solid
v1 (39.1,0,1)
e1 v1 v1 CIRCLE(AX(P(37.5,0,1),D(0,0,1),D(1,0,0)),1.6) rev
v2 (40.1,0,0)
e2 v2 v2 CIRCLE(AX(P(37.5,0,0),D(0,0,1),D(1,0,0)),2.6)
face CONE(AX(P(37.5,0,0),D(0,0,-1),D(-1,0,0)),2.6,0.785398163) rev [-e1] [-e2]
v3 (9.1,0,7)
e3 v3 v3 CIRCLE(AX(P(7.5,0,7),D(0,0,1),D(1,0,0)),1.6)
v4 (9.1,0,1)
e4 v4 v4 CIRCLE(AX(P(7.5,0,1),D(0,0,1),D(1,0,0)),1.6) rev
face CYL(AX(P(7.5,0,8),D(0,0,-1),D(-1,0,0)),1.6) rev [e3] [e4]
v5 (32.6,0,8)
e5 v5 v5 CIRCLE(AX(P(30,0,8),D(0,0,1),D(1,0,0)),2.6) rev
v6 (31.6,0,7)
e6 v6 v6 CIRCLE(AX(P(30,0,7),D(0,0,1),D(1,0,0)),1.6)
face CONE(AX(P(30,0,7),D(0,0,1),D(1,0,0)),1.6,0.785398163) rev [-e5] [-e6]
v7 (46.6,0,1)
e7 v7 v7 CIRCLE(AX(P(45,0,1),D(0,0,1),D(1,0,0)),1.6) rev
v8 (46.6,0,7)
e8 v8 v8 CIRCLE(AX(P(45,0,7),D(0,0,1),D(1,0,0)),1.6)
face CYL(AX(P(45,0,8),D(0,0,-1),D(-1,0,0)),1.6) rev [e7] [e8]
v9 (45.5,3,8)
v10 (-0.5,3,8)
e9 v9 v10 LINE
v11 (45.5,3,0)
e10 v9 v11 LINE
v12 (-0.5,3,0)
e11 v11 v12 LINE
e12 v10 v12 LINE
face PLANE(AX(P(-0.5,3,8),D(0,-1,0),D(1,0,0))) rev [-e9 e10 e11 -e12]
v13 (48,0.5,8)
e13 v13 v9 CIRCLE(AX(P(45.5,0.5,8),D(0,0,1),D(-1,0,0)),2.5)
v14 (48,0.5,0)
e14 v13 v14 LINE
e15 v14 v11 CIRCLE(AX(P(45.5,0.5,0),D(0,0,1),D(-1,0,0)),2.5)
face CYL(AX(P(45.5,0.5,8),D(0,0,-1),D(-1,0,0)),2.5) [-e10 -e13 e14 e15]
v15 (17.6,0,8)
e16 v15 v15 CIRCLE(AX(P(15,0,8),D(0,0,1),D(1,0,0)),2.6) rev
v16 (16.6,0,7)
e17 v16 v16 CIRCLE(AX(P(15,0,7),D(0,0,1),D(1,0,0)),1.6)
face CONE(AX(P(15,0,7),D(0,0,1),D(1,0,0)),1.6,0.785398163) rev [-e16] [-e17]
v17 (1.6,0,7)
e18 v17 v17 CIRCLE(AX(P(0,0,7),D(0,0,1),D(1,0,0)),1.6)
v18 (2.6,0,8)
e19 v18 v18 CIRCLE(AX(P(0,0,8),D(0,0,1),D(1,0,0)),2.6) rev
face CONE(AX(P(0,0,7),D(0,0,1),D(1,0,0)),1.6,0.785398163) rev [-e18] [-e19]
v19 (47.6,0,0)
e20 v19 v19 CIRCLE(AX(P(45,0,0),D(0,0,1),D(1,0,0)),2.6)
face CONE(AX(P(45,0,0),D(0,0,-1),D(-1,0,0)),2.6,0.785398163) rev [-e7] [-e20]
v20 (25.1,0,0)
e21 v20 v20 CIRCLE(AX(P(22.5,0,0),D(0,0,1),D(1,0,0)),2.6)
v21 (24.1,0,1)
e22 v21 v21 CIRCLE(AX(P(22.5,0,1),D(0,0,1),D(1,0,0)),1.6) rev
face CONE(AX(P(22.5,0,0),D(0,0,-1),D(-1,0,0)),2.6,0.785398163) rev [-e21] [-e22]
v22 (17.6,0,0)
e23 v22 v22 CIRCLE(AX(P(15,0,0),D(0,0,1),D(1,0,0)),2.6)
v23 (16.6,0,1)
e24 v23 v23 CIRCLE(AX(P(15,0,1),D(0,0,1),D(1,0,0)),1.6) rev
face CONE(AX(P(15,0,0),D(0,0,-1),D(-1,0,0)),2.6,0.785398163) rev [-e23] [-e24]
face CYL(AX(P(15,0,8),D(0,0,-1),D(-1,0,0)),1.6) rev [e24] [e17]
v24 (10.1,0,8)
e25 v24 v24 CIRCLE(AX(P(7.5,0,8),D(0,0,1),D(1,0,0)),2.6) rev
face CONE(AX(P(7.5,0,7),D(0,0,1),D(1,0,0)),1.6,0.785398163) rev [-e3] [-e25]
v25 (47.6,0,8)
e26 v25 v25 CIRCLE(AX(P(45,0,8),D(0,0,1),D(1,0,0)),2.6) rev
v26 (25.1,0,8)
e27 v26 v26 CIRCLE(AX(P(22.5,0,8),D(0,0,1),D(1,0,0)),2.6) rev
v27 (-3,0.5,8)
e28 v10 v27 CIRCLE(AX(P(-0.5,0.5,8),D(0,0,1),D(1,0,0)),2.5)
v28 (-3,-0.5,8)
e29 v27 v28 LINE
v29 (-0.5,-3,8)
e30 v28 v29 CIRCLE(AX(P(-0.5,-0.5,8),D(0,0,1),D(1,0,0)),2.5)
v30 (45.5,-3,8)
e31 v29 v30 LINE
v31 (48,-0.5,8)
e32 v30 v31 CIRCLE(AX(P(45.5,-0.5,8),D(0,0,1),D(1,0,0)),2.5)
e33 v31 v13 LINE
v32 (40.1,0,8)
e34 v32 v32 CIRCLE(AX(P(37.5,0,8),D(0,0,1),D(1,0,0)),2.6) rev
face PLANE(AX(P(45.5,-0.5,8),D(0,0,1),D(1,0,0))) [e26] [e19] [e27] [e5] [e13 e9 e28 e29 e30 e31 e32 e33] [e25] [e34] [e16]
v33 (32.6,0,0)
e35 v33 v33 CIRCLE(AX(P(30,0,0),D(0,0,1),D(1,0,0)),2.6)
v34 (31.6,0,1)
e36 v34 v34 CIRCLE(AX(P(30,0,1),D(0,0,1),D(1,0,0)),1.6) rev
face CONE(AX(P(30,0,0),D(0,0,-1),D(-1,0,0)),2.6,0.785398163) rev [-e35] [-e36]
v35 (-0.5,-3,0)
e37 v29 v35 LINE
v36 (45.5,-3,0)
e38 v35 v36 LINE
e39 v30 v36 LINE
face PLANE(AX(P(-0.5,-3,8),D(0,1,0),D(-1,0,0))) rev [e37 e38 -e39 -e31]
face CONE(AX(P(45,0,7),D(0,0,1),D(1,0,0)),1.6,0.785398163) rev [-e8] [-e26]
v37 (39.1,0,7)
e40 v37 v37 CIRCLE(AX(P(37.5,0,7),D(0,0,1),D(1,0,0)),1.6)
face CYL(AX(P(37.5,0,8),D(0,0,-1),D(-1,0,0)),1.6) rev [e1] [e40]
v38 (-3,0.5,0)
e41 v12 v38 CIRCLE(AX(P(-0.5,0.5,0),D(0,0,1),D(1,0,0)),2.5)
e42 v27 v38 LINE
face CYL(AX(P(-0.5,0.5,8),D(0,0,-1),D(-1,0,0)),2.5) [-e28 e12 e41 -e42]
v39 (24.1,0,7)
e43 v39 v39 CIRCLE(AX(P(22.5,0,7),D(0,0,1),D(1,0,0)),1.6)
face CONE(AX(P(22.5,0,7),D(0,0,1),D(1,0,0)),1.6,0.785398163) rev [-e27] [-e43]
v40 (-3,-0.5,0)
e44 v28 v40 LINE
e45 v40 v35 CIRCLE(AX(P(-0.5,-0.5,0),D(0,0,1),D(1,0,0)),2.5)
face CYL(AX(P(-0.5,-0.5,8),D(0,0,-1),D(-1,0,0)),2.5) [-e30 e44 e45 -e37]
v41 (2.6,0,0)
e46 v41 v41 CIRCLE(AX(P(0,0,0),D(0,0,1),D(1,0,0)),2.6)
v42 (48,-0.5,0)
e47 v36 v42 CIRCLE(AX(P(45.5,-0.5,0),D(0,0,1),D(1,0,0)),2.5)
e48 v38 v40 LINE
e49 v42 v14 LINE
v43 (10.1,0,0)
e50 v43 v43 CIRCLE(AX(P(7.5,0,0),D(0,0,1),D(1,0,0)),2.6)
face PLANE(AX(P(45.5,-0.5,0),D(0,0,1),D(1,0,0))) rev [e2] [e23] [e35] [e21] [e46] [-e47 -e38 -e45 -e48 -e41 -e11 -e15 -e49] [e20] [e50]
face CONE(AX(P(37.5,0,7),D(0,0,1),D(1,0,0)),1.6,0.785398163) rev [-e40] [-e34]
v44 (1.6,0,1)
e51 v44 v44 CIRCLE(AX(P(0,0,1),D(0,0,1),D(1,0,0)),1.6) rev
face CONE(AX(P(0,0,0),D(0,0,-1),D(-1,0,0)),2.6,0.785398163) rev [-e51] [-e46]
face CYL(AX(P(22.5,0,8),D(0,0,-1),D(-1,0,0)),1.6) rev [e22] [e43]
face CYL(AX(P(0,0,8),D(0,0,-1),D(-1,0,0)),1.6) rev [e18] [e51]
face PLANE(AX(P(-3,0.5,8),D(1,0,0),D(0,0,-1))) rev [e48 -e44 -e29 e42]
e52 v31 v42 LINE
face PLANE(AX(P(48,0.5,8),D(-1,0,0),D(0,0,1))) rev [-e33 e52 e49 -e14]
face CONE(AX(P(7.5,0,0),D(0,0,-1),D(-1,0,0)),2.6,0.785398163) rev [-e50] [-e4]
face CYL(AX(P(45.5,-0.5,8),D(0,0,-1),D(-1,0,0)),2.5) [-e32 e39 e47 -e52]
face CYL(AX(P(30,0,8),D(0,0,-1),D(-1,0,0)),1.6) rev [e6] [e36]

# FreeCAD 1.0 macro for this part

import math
import FreeCAD as App
import Part
import Sketcher

V = App.Vector


def edges_at(feature, points):
    """Names of the edges that pass closest to the given points."""
    edges = feature.Shape.Edges
    near = lambda p: min(range(len(edges)), key=lambda i: edges[i].distToShape(Part.Vertex(*p))[0])
    return sorted({f"Edge{near(p) + 1}" for p in points})

doc = App.newDocument("Part")
params = doc.addObject("Spreadsheet::Sheet", "Params")
for row, (alias, value) in enumerate([
    ("sketch1_diameter", "3.2 mm"),
    ("sketch1_radius", "2.5 mm"),
    ("sketch1_width", "46 mm"),
    ("sketch1_height", "1 mm"),
    ("pad1_length", "8 mm"),
    ("chamfer_size", "1 mm"),
], start=1):
    params.set(f"A{row}", alias)
    params.set(f"B{row}", "=" + value)
    params.setAlias(f"B{row}", alias)

body = doc.addObject("PartDesign::Body", "Body")

# Sketch on XY plane
sketch1 = body.newObject("Sketcher::SketchObject", "Sketch")
sketch1.AttachmentSupport = (doc.getObject("XY_Plane"), [""])
sketch1.MapMode = "FlatFace"
sketch1.addGeometry([
    Part.LineSegment(V(45.5, 3, 0), V(-0.5, 3, 0)),  # 0
    Part.ArcOfCircle(Part.Circle(V(-0.5, 0.5, 0), V(0, 0, 1), 2.5), math.radians(90), math.radians(180)),  # 1
    Part.LineSegment(V(-3, 0.5, 0), V(-3, -0.5, 0)),  # 2
    Part.ArcOfCircle(Part.Circle(V(-0.5, -0.5, 0), V(0, 0, 1), 2.5), math.radians(180), math.radians(270)),  # 3
    Part.LineSegment(V(-0.5, -3, 0), V(45.5, -3, 0)),  # 4
    Part.ArcOfCircle(Part.Circle(V(45.5, -0.5, 0), V(0, 0, 1), 2.5), math.radians(-90), math.radians(0)),  # 5
    Part.LineSegment(V(48, -0.5, 0), V(48, 0.5, 0)),  # 6
    Part.ArcOfCircle(Part.Circle(V(45.5, 0.5, 0), V(0, 0, 1), 2.5), math.radians(0), math.radians(90)),  # 7
    Part.Circle(V(45, 0, 0), V(0, 0, 1), 1.6),  # 8
    Part.Circle(V(37.5, 0, 0), V(0, 0, 1), 1.6),  # 9
    Part.Circle(V(30, 0, 0), V(0, 0, 1), 1.6),  # 10
    Part.Circle(V(22.5, 0, 0), V(0, 0, 1), 1.6),  # 11
    Part.Circle(V(15, 0, 0), V(0, 0, 1), 1.6),  # 12
    Part.Circle(V(7.5, 0, 0), V(0, 0, 1), 1.6),  # 13
    Part.Circle(V(0, 0, 0), V(0, 0, 1), 1.6),  # 14
], False)
sketch1.addConstraint([
    Sketcher.Constraint("Tangent", 0, 2, 1, 1),
    Sketcher.Constraint("Tangent", 1, 2, 2, 1),
    Sketcher.Constraint("Tangent", 2, 2, 3, 1),
    Sketcher.Constraint("Tangent", 3, 2, 4, 1),
    Sketcher.Constraint("Tangent", 4, 2, 5, 1),
    Sketcher.Constraint("Tangent", 5, 2, 6, 1),
    Sketcher.Constraint("Tangent", 6, 2, 7, 1),
    Sketcher.Constraint("Tangent", 7, 2, 0, 1),
    Sketcher.Constraint("Horizontal", 0),
    Sketcher.Constraint("Vertical", 2),
    Sketcher.Constraint("Horizontal", 4),
    Sketcher.Constraint("Vertical", 6),
    Sketcher.Constraint("Coincident", 14, 3, -1, 1),
    Sketcher.Constraint("Equal", 1, 3),
    Sketcher.Constraint("Equal", 3, 5),
    Sketcher.Constraint("Equal", 5, 7),
    Sketcher.Constraint("Equal", 8, 9),
    Sketcher.Constraint("Equal", 9, 10),
    Sketcher.Constraint("Equal", 10, 11),
    Sketcher.Constraint("Equal", 11, 12),
    Sketcher.Constraint("Equal", 12, 13),
    Sketcher.Constraint("Equal", 13, 14),
    Sketcher.Constraint("PointOnObject", 8, 3, -1),
    Sketcher.Constraint("PointOnObject", 9, 3, -1),
    Sketcher.Constraint("PointOnObject", 10, 3, -1),
    Sketcher.Constraint("PointOnObject", 11, 3, -1),
    Sketcher.Constraint("PointOnObject", 12, 3, -1),
    Sketcher.Constraint("PointOnObject", 13, 3, -1),
    Sketcher.Constraint("Diameter", 8, 3.2),
    Sketcher.Constraint("Radius", 1, 2.5),
    Sketcher.Constraint("DistanceX", 0, 2, 0, 1, 46.0),
    Sketcher.Constraint("DistanceY", 2, 2, 2, 1, 1.0),
    Sketcher.Constraint("DistanceX", -1, 1, 8, 3, 45.0),
    Sketcher.Constraint("DistanceX", -1, 1, 10, 3, 30.0),
    Sketcher.Constraint("DistanceX", -1, 1, 12, 3, 15.0),
    Sketcher.Constraint("DistanceY", -1, 1, 0, 2, 3.0),
    Sketcher.Constraint("DistanceX", 1, 2, -1, 1, 3.0),
    Sketcher.Constraint("DistanceX", 9, 3, 5, 3, 8.0),
    Sketcher.Constraint("DistanceX", 11, 3, 9, 3, 15.0),
    Sketcher.Constraint("DistanceX", 1, 3, 13, 3, 8.0),
])
sketch1.setExpression("Constraints[28]", "Params.sketch1_diameter")
sketch1.setExpression("Constraints[29]", "Params.sketch1_radius")
sketch1.setExpression("Constraints[30]", "Params.sketch1_width")
sketch1.setExpression("Constraints[31]", "Params.sketch1_height")
pad1 = body.newObject("PartDesign::Pad", "Pad")
pad1.Profile = sketch1
pad1.setExpression("Length", "Params.pad1_length")
doc.recompute()

chamfer = body.newObject("PartDesign::Chamfer", "Chamfer")
chamfer.Base = (pad1, edges_at(pad1, [
    (-1.6, 0, 0),
    (-1.6, 0, 8),
    (5.9, 0, 0),
    (5.9, 0, 8),
    (13.4, 0, 0),
    (13.4, 0, 8),
    (20.9, 0, 0),
    (20.9, 0, 8),
    (28.4, 0, 0),
    (28.4, 0, 8),
    (35.9, 0, 0),
    (35.9, 0, 8),
    (43.4, 0, 0),
    (43.4, 0, 8),
]))
chamfer.setExpression("Size", "Params.chamfer_size")

doc.recompute()
